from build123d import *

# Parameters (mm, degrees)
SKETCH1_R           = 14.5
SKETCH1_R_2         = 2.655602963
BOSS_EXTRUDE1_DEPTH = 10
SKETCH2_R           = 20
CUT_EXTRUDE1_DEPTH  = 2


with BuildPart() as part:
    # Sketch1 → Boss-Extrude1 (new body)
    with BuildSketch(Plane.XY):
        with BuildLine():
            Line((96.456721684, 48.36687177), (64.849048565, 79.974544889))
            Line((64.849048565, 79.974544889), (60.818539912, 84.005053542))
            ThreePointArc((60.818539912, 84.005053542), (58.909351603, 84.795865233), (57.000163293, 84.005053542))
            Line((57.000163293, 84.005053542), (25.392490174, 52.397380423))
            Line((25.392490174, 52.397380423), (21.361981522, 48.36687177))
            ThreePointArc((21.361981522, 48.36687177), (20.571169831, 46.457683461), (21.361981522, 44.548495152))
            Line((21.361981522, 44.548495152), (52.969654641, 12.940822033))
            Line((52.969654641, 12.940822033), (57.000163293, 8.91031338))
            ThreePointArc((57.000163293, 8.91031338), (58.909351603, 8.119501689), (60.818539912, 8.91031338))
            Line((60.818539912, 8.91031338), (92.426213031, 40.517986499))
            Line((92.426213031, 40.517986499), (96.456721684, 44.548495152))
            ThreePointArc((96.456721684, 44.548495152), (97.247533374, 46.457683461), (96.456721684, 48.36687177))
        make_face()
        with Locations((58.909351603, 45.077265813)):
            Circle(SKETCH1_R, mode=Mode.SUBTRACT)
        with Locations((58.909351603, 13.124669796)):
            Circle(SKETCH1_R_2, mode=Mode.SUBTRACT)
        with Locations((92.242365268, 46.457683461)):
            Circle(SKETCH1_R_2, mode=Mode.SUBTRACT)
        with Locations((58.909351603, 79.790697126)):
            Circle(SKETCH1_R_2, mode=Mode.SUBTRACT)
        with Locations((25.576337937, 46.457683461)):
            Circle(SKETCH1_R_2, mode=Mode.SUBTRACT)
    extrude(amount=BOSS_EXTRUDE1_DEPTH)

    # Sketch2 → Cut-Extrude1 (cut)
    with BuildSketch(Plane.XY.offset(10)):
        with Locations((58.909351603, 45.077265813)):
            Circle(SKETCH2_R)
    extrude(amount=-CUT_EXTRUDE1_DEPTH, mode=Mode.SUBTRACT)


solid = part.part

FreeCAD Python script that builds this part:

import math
import FreeCAD as App
import Part
import Sketcher

V = App.Vector
Q = App.Units.Quantity

doc = App.newDocument("Part")
body = doc.addObject("PartDesign::Body", "Body")

# Sketch on XY plane
sketch1 = doc.addObject("Sketcher::SketchObject", "Sketch")
body.addObject(sketch1)
sketch1.AttachmentSupport = (doc.XY_Plane, [""])
sketch1.MapMode = "FlatFace"
sketch1.addGeometry([
    Part.LineSegment(V(96.5, 48.4, 0), V(60.8, 84, 0)),  # 0
    Part.ArcOfCircle(Part.Circle(V(58.9, 82.1, 0), V(0, 0, 1), 2.7), math.radians(45), math.radians(135)),  # 1
    Part.LineSegment(V(57, 84, 0), V(25.4, 52.4, 0)),  # 2
    Part.LineSegment(V(25.4, 52.4, 0), V(21.4, 48.4, 0)),  # 3
    Part.ArcOfCircle(Part.Circle(V(23.3, 46.5, 0), V(0, 0, 1), 2.7), math.radians(135), math.radians(225)),  # 4
    Part.LineSegment(V(21.4, 44.5, 0), V(53, 12.9, 0)),  # 5
    Part.LineSegment(V(53, 12.9, 0), V(57, 8.9, 0)),  # 6
    Part.ArcOfCircle(Part.Circle(V(58.9, 10.8, 0), V(0, 0, 1), 2.7), math.radians(-135), math.radians(-45)),  # 7
    Part.LineSegment(V(60.8, 8.9, 0), V(96.5, 44.5, 0)),  # 8
    Part.ArcOfCircle(Part.Circle(V(94.5, 46.5, 0), V(0, 0, 1), 2.7), math.radians(-45), math.radians(45)),  # 9
    Part.Circle(V(58.9, 13.1, 0), V(0, 0, 1), 2.7),  # 10
    Part.Circle(V(58.9, 45.1, 0), V(0, 0, 1), 14.5),  # 11
    Part.Circle(V(25.6, 46.5, 0), V(0, 0, 1), 2.7),  # 12
    Part.Circle(V(92.2, 46.5, 0), V(0, 0, 1), 2.7),  # 13
    Part.Circle(V(58.9, 79.8, 0), V(0, 0, 1), 2.7),  # 14
], False)
sketch1.addConstraint([
    Sketcher.Constraint("Tangent", 0, 2, 1, 1),
    Sketcher.Constraint("Tangent", 1, 2, 2, 1),
    Sketcher.Constraint("Coincident", 2, 2, 3, 1),
    Sketcher.Constraint("Tangent", 3, 2, 4, 1),
    Sketcher.Constraint("Tangent", 4, 2, 5, 1),
    Sketcher.Constraint("Coincident", 5, 2, 6, 1),
    Sketcher.Constraint("Tangent", 6, 2, 7, 1),
    Sketcher.Constraint("Tangent", 7, 2, 8, 1),
    Sketcher.Constraint("Tangent", 8, 2, 9, 1),
    Sketcher.Constraint("Tangent", 9, 2, 0, 1),
    Sketcher.Constraint("Equal", 1, 4),
    Sketcher.Constraint("Equal", 4, 7),
    Sketcher.Constraint("Equal", 7, 9),
    Sketcher.Constraint("Equal", 10, 12),
    Sketcher.Constraint("Equal", 12, 13),
    Sketcher.Constraint("Equal", 13, 14),
    Sketcher.Constraint("Perpendicular", 0, 2),
    Sketcher.Constraint("Parallel", 2, 3),
    Sketcher.Constraint("Perpendicular", 3, 5),
    Sketcher.Constraint("Parallel", 5, 6),
    Sketcher.Constraint("Perpendicular", 6, 8),
    Sketcher.Constraint("Horizontal", 4, 3, 9, 3),
    Sketcher.Constraint("Horizontal", 9, 3, 12, 3),
    Sketcher.Constraint("Horizontal", 12, 3, 13, 3),
    Sketcher.Constraint("Horizontal", 0, 2, 1, 2),
    Sketcher.Constraint("Vertical", 7, 3, 10, 3),
    Sketcher.Constraint("Vertical", 10, 3, 11, 3),
    Sketcher.Constraint("Vertical", 11, 3, 14, 3),
    Sketcher.Constraint("Equal", 2, 5),
    Sketcher.Constraint("Diameter", 11, Q("29 mm")),
    Sketcher.Constraint("Radius", 1, Q("2.7 mm")),
    Sketcher.Constraint("Distance", 0, Q("50.4 mm")),
    Sketcher.Constraint("Distance", 2, Q("44.7 mm")),
    Sketcher.Constraint("Diameter", 10, Q("5.311206 mm")),
    Sketcher.Constraint("DistanceY", -1, 1, 7, 3, Q("10.819502 mm")),
    Sketcher.Constraint("DistanceY", 11, 3, 1, 3, Q("37.018599 mm")),
    Sketcher.Constraint("DistanceX", -1, 1, 1, 3, Q("58.909352 mm")),
    Sketcher.Constraint("DistanceY", -1, 1, 10, 3, Q("13.12467 mm")),
    Sketcher.Constraint("DistanceX", 4, 3, 12, 3, Q("2.305168 mm")),
    Sketcher.Constraint("DistanceX", 13, 3, 9, 3, Q("2.305168 mm")),
    Sketcher.Constraint("DistanceY", 14, 3, 1, 3, Q("2.305168 mm")),
])
pad1 = doc.addObject("PartDesign::Pad", "Pad")
body.addObject(pad1)
pad1.Profile = sketch1
pad1.Length = 10

# Sketch on XY plane
sketch2 = doc.addObject("Sketcher::SketchObject", "Sketch001")
body.addObject(sketch2)
sketch2.AttachmentSupport = (doc.XY_Plane, [""])
sketch2.MapMode = "FlatFace"
sketch2.AttachmentOffset = App.Placement(V(0, 0, 10), App.Rotation())
sketch2.addGeometry(Part.Circle(V(59, 45, 0), V(0, 0, 1), 20), False)
sketch2.addConstraint([
    Sketcher.Constraint("Diameter", 0, Q("40 mm")),
    Sketcher.Constraint("DistanceX", -1, 1, 0, 3, Q("58.909352 mm")),
    Sketcher.Constraint("DistanceY", -1, 1, 0, 3, Q("45.077266 mm")),
])
pocket1 = doc.addObject("PartDesign::Pocket", "Pocket")
body.addObject(pocket1)
pocket1.Profile = sketch2
pocket1.Length = 2

doc.recompute()
